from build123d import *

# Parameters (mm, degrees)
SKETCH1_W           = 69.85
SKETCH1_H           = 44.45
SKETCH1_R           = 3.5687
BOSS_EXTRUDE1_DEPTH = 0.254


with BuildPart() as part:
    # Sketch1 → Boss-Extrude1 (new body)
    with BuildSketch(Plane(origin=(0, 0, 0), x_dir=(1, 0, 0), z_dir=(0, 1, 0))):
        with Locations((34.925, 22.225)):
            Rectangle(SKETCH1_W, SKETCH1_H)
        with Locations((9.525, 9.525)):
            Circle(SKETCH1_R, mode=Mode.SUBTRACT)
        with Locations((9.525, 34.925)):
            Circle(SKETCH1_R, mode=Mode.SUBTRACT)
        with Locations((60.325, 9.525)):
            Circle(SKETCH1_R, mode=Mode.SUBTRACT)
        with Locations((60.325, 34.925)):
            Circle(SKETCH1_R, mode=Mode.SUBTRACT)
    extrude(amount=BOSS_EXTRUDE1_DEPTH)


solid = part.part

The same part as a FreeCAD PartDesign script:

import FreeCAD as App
import Part
import Sketcher
Q = App.Units.Quantity

doc = App.newDocument("Part")
body = doc.addObject("PartDesign::Body", "Body")

sketch1 = doc.addObject("Sketcher::SketchObject", "Sketch")
body.addObject(sketch1)
sketch1.AttachmentSupport = (doc.XZ_Plane, [""])
sketch1.MapMode = "FlatFace"
sketch1.addGeometry([
    Part.LineSegment(App.Vector(0, -44.5, 0), App.Vector(0, 0, 0)),
    Part.LineSegment(App.Vector(0, 0, 0), App.Vector(69.8, 0, 0)),
    Part.LineSegment(App.Vector(69.8, 0, 0), App.Vector(69.8, -44.5, 0)),
    Part.LineSegment(App.Vector(69.8, -44.5, 0), App.Vector(0, -44.5, 0)),
    Part.Circle(App.Vector(9.5, -9.5, 0), App.Vector(0, 0, 1), 3.6),
    Part.Circle(App.Vector(60.3, -9.5, 0), App.Vector(0, 0, 1), 3.6),
    Part.Circle(App.Vector(9.5, -34.9, 0), App.Vector(0, 0, 1), 3.6),
    Part.Circle(App.Vector(60.3, -34.9, 0), App.Vector(0, 0, 1), 3.6),
], False)
sketch1.addConstraint([
    Sketcher.Constraint("Coincident", 0, 2, 1, 1),
    Sketcher.Constraint("Coincident", 1, 2, 2, 1),
    Sketcher.Constraint("Coincident", 2, 2, 3, 1),
    Sketcher.Constraint("Coincident", 3, 2, 0, 1),
    Sketcher.Constraint("Vertical", 0),
    Sketcher.Constraint("Horizontal", 1),
    Sketcher.Constraint("Vertical", 2),
    Sketcher.Constraint("Horizontal", 3),
    Sketcher.Constraint("Coincident", 0, 2, -1, 1),
    Sketcher.Constraint("Equal", 4, 5),
    Sketcher.Constraint("Equal", 5, 6),
    Sketcher.Constraint("Equal", 6, 7),
    Sketcher.Constraint("Horizontal", 4, 3, 5, 3),
    Sketcher.Constraint("Horizontal", 6, 3, 7, 3),
    Sketcher.Constraint("Vertical", 4, 3, 6, 3),
    Sketcher.Constraint("Vertical", 5, 3, 7, 3),
    Sketcher.Constraint("Diameter", 4, Q("0.281 in")),
    Sketcher.Constraint("DistanceX", 4, 3, 5, 3, Q("2 in")),
    Sketcher.Constraint("DistanceY", 6, 3, 4, 3, Q("1 in")),
    Sketcher.Constraint("DistanceX", 1, 1, 1, 2, Q("2.75 in")),
    Sketcher.Constraint("DistanceY", 0, 1, 0, 2, Q("1.75 in")),
    Sketcher.Constraint("DistanceX", -1, 1, 4, 3, Q("0.375 in")),
    Sketcher.Constraint("DistanceY", 4, 3, -1, 1, Q("0.375 in")),
])
pad1 = doc.addObject("PartDesign::Pad", "Pad")
body.addObject(pad1)
pad1.Profile = sketch1
pad1.Length = Q("0.01 in")
pad1.Reversed = True

doc.recompute()
